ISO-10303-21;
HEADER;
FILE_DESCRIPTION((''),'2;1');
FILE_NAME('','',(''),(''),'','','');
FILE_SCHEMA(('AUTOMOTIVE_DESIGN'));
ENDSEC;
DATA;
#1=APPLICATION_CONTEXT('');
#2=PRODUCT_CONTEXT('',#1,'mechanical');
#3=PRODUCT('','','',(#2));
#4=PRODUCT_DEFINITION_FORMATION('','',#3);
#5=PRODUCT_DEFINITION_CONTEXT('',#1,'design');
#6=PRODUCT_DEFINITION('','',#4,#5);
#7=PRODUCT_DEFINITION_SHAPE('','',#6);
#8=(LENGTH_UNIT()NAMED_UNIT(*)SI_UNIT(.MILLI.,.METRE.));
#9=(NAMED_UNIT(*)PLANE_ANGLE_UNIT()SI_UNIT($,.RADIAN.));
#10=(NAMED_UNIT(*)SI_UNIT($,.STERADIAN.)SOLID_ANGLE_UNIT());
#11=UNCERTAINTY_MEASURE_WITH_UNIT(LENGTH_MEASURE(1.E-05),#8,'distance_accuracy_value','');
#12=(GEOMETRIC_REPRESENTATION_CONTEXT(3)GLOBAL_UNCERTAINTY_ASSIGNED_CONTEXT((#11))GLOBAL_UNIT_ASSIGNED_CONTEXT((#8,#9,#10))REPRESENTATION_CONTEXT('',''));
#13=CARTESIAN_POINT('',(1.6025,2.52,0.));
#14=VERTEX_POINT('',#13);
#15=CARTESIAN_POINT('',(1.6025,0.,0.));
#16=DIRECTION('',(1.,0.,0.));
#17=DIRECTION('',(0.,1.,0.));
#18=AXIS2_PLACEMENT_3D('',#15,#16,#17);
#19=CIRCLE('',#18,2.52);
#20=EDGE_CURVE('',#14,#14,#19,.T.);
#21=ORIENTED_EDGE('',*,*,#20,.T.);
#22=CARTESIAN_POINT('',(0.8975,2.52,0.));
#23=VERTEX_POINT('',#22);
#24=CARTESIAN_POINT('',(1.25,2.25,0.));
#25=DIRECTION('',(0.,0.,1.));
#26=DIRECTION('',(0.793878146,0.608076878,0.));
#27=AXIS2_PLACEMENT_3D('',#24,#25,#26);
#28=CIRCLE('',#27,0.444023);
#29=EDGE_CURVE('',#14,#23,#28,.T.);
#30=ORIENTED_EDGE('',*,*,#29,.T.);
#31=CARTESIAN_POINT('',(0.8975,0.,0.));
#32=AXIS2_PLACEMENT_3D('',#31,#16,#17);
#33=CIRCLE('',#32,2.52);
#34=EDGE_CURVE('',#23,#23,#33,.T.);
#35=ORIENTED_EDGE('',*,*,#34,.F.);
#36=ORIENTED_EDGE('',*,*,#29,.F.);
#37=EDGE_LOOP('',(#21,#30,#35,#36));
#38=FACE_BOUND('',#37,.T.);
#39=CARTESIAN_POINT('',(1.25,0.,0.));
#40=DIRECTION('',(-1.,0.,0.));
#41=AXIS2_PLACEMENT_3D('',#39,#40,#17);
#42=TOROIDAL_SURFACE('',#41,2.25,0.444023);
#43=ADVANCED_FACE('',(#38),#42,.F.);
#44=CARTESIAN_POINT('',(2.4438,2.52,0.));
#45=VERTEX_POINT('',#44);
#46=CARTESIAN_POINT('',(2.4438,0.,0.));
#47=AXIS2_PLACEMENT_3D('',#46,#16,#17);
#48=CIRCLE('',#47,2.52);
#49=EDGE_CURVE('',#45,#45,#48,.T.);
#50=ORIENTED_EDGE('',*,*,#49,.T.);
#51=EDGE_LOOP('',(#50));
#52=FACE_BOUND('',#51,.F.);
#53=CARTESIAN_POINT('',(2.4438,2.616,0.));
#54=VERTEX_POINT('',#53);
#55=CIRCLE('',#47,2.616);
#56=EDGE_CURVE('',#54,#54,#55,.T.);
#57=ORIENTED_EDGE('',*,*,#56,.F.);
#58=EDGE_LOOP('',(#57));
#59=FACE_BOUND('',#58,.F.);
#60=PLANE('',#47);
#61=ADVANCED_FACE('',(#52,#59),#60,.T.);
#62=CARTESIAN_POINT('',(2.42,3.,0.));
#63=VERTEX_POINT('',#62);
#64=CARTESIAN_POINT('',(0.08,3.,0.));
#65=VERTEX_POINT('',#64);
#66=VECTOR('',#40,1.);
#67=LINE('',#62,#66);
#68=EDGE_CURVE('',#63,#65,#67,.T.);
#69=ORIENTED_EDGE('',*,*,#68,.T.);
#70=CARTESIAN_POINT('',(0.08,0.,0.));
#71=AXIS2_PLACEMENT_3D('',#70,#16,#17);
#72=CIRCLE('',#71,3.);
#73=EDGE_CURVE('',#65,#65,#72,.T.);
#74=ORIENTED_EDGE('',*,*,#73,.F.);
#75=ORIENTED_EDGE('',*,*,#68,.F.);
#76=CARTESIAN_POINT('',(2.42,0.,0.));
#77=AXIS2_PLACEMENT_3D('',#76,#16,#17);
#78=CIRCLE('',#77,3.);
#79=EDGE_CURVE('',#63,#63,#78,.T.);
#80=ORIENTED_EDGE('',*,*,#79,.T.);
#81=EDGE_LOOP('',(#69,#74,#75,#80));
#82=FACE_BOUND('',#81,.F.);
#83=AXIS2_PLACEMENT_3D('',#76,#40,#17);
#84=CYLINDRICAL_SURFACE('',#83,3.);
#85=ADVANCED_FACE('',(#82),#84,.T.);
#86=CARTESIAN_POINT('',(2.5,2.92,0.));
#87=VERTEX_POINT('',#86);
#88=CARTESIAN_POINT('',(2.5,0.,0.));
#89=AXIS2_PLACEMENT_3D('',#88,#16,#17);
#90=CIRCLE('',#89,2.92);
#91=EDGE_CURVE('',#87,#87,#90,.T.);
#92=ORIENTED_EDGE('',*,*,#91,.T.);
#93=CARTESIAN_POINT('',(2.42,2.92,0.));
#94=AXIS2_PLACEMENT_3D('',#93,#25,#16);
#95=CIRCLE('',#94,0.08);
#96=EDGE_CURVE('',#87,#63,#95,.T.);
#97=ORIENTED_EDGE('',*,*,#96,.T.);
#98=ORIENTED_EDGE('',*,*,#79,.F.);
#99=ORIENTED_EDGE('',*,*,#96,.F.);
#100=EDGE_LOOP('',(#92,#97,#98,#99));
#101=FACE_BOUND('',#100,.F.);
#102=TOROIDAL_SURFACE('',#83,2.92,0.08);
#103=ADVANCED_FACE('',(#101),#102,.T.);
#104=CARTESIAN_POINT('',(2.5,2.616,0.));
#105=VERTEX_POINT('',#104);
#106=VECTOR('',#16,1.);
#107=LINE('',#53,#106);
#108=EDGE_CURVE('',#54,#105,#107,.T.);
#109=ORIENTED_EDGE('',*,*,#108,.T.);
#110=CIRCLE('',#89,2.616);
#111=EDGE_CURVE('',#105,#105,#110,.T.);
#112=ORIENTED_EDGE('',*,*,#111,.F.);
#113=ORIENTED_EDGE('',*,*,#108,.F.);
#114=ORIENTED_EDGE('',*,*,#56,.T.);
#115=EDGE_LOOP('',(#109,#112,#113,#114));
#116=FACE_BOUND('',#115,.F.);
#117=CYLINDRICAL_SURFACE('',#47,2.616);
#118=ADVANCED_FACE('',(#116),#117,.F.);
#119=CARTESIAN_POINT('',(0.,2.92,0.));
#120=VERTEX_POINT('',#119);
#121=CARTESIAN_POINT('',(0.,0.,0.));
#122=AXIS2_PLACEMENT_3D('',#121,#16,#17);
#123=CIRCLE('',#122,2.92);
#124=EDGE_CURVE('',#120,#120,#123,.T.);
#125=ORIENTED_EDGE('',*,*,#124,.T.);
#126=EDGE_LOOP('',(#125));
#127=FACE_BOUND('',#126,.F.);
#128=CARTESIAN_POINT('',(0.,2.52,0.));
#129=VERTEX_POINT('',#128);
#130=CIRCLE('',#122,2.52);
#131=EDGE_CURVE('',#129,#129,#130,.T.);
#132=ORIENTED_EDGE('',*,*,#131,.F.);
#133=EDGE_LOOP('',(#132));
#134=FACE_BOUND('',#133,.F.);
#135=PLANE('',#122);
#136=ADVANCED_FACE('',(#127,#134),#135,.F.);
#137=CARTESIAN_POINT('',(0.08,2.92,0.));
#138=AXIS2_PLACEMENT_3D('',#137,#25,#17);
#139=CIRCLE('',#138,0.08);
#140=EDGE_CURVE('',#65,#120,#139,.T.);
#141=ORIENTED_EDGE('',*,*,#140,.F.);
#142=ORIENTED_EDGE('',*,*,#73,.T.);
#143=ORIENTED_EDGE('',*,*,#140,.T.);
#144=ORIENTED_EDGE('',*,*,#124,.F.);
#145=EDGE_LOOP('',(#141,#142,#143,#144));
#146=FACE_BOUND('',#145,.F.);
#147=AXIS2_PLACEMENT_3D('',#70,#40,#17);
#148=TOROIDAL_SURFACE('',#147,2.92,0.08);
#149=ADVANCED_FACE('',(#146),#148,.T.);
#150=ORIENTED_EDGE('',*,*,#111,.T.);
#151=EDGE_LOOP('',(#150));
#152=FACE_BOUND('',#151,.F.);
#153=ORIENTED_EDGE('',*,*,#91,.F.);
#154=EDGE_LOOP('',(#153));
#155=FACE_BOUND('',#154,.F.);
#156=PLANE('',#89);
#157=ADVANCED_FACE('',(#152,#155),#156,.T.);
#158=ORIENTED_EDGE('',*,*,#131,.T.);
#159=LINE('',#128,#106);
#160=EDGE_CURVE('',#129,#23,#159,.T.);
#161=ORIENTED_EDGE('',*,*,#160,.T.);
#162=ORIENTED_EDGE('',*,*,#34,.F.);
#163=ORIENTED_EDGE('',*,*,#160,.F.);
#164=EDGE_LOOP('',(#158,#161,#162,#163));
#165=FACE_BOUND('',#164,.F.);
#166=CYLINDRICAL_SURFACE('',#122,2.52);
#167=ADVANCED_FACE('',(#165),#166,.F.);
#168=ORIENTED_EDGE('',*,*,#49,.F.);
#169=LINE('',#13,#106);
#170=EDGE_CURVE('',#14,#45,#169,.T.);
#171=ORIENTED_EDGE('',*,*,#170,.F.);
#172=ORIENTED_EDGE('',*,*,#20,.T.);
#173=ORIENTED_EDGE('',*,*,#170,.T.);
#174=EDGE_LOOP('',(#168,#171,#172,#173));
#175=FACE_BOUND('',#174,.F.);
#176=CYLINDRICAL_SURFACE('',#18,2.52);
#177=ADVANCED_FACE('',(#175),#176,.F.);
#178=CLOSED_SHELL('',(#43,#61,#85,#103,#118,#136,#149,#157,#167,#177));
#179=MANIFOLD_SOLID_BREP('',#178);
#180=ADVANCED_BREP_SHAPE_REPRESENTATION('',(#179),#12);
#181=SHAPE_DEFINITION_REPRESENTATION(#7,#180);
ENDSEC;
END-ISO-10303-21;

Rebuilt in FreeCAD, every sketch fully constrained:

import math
import FreeCAD as App
import Part
import Sketcher

V = App.Vector

doc = App.newDocument("Part")
params = doc.addObject("Spreadsheet::Sheet", "Params")
for row, (alias, value) in enumerate([
    ("sketch1_radius", "0.08 mm"),
    ("sketch1_height", "0.4 mm"),
    ("sketch1_width", "2.34 mm"),
    ("revolution_angle", "360 deg"),
], start=1):
    params.set(f"A{row}", alias)
    params.set(f"B{row}", "=" + value)
    params.setAlias(f"B{row}", alias)

body = doc.addObject("PartDesign::Body", "Body")

# Sketch on XY plane
sketch1 = body.newObject("Sketcher::SketchObject", "Sketch")
sketch1.AttachmentSupport = (doc.getObject("XY_Plane"), [""])
sketch1.MapMode = "FlatFace"
sketch1.addGeometry(Part.ArcOfCircle(Part.Circle(V(0.08, 2.92, 0), V(0, 0, 1), 0.08), math.radians(90), math.radians(180)), False)
sketch1.addGeometry(Part.LineSegment(V(0, 2.92, 0), V(0, 2.52, 0)), False)
sketch1.addGeometry(Part.LineSegment(V(0, 2.52, 0), V(0.9, 2.52, 0)), False)
sketch1.addGeometry(Part.ArcOfCircle(Part.Circle(V(1.25, 2.25, 0), V(0, 0, 1), 0.44), math.radians(37), math.radians(143)), False)
sketch1.addGeometry(Part.LineSegment(V(1.6, 2.52, 0), V(2.44, 2.52, 0)), False)
sketch1.addGeometry(Part.LineSegment(V(2.44, 2.52, 0), V(2.44, 2.62, 0)), False)
sketch1.addGeometry(Part.LineSegment(V(2.44, 2.62, 0), V(2.5, 2.62, 0)), False)
sketch1.addGeometry(Part.LineSegment(V(2.5, 2.62, 0), V(2.5, 2.92, 0)), False)
sketch1.addGeometry(Part.ArcOfCircle(Part.Circle(V(2.42, 2.92, 0), V(0, 0, 1), 0.08), math.radians(0), math.radians(90)), False)
sketch1.addGeometry(Part.LineSegment(V(2.42, 3, 0), V(0.08, 3, 0)), False)
sketch1.addConstraint(Sketcher.Constraint("Tangent", 0, 2, 1, 1))
sketch1.addConstraint(Sketcher.Constraint("Coincident", 1, 2, 2, 1))
sketch1.addConstraint(Sketcher.Constraint("Coincident", 2, 2, 3, 2))
sketch1.addConstraint(Sketcher.Constraint("Coincident", 3, 1, 4, 1))
sketch1.addConstraint(Sketcher.Constraint("Coincident", 4, 2, 5, 1))
sketch1.addConstraint(Sketcher.Constraint("Coincident", 5, 2, 6, 1))
sketch1.addConstraint(Sketcher.Constraint("Coincident", 6, 2, 7, 1))
sketch1.addConstraint(Sketcher.Constraint("Tangent", 7, 2, 8, 1))
sketch1.addConstraint(Sketcher.Constraint("Tangent", 8, 2, 9, 1))
sketch1.addConstraint(Sketcher.Constraint("Tangent", 9, 2, 0, 1))
sketch1.addConstraint(Sketcher.Constraint("Vertical", 1))
sketch1.addConstraint(Sketcher.Constraint("Horizontal", 2))
sketch1.addConstraint(Sketcher.Constraint("Horizontal", 4))
sketch1.addConstraint(Sketcher.Constraint("Vertical", 5))
sketch1.addConstraint(Sketcher.Constraint("Horizontal", 6))
sketch1.addConstraint(Sketcher.Constraint("Vertical", 7))
sketch1.addConstraint(Sketcher.Constraint("Horizontal", 9))
sketch1.addConstraint(Sketcher.Constraint("Equal", 0, 8))
sketch1.addConstraint(Sketcher.Constraint("PointOnObject", 0, 2, -2))
sketch1.addConstraint(Sketcher.Constraint("Horizontal", 2, 2, 3, 1))
sketch1.addConstraint(Sketcher.Constraint("Radius", 0, 0.08))
sketch1.addConstraint(Sketcher.Constraint("DistanceY", 1, 2, 1, 1, 0.4))
sketch1.addConstraint(Sketcher.Constraint("DistanceY", -1, 1, 8, 2, 3.0))
sketch1.addConstraint(Sketcher.Constraint("Radius", 3, 0.444))
sketch1.addConstraint(Sketcher.Constraint("DistanceX", 9, 2, 9, 1, 2.34))
sketch1.addConstraint(Sketcher.Constraint("DistanceY", 5, 1, 5, 2, 0.096))
sketch1.addConstraint(Sketcher.Constraint("DistanceX", -1, 1, 3, 3, 1.25))
sketch1.addConstraint(Sketcher.Constraint("DistanceY", -1, 1, 3, 3, 2.25))
sketch1.addConstraint(Sketcher.Constraint("DistanceX", 4, 1, 4, 2, 0.8413))
sketch1.setExpression("Constraints[20]", "Params.sketch1_radius")
sketch1.setExpression("Constraints[21]", "Params.sketch1_height")
sketch1.setExpression("Constraints[24]", "Params.sketch1_width")
revolution = body.newObject("PartDesign::Revolution", "Revolution")
revolution.Profile = sketch1
revolution.ReferenceAxis = (sketch1, ["H_Axis"])
revolution.setExpression("Angle", "Params.revolution_angle")

doc.recompute()
